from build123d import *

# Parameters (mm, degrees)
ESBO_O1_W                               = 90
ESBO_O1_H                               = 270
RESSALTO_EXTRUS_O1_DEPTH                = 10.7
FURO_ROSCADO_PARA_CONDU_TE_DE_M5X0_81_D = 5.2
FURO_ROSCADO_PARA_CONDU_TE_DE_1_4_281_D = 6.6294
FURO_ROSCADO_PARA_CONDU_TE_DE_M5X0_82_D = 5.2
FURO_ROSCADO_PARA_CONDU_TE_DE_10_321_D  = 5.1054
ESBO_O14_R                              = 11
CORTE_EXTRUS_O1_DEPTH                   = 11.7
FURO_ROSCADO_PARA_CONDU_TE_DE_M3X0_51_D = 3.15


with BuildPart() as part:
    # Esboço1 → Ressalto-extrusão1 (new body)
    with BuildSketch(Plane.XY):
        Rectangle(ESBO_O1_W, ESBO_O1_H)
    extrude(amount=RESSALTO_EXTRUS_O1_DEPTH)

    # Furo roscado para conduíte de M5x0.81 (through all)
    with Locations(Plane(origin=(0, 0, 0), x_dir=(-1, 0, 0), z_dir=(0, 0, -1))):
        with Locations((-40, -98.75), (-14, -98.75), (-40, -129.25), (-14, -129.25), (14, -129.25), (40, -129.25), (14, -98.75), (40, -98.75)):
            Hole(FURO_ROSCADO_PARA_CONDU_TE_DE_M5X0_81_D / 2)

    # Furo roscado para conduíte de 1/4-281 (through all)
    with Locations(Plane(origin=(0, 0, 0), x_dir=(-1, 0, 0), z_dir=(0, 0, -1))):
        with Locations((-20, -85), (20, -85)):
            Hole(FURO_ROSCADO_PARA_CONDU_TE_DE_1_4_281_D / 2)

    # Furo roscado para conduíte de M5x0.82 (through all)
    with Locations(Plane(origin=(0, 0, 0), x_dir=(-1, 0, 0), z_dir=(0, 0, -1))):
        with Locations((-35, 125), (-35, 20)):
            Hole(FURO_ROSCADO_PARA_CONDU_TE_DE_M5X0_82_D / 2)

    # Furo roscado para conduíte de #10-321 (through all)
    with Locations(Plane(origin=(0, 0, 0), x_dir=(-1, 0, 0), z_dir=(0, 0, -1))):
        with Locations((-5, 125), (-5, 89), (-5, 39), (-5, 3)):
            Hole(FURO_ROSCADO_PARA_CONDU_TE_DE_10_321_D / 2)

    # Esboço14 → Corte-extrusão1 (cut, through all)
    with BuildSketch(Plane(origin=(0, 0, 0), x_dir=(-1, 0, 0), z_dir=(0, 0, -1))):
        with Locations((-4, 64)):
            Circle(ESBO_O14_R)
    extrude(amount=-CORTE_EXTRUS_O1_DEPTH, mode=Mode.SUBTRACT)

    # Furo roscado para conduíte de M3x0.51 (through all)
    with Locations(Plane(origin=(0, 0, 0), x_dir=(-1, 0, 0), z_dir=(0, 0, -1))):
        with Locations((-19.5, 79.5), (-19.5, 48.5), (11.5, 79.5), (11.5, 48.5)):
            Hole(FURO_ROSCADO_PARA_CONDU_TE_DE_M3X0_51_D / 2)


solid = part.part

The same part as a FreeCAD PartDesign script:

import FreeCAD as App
import Part
import Sketcher


def add_polygon(sketch, points):
    """Adds a closed chain of lines whose ends are joined by coincident constraints."""
    first, n = sketch.GeometryCount, len(points)
    for a, b in zip(points, points[1:] + points[:1]):
        sketch.addGeometry(Part.LineSegment(App.Vector(*a, 0), App.Vector(*b, 0)), False)
    for i in range(n):
        sketch.addConstraint(Sketcher.Constraint("Coincident", first + i, 2, first + (i + 1) % n, 1))

doc = App.newDocument("Part")
body = doc.addObject("PartDesign::Body", "Body")

# Sketch on XY plane
sketch1 = body.newObject("Sketcher::SketchObject", "Sketch")
sketch1.AttachmentSupport = (doc.getObject("XY_Plane"), [""])
sketch1.MapMode = "FlatFace"
add_polygon(sketch1, [(-45, 135), (-45, -135), (45, -135), (45, 135)])  # lines 0-3
sketch1.addConstraint([
    Sketcher.Constraint("Vertical", 0),
    Sketcher.Constraint("Horizontal", 1),
    Sketcher.Constraint("Vertical", 2),
    Sketcher.Constraint("Horizontal", 3),
    Sketcher.Constraint("Symmetric", 0, 2, 2, 2, -1, 1),
    Sketcher.Constraint("DistanceX", 1, 1, 1, 2, 90.0),
    Sketcher.Constraint("DistanceY", 0, 2, 0, 1, 270.0),
])
pad1 = body.newObject("PartDesign::Pad", "Pad")
pad1.Profile = sketch1
pad1.Length = 10.7

# Sketch on XY plane
sketch2 = body.newObject("Sketcher::SketchObject", "Sketch001")
sketch2.AttachmentSupport = (doc.getObject("XY_Plane"), [""])
sketch2.MapMode = "FlatFace"
sketch2.addGeometry([
    Part.Circle(App.Vector(40, -98.75, 0), App.Vector(0, 0, 1), 2.6),  # 0
    Part.Circle(App.Vector(14, -98.75, 0), App.Vector(0, 0, 1), 2.6),  # 1
    Part.Circle(App.Vector(40, -129.25, 0), App.Vector(0, 0, 1), 2.6),  # 2
    Part.Circle(App.Vector(14, -129.25, 0), App.Vector(0, 0, 1), 2.6),  # 3
    Part.Circle(App.Vector(-14, -129.25, 0), App.Vector(0, 0, 1), 2.6),  # 4
    Part.Circle(App.Vector(-40, -129.25, 0), App.Vector(0, 0, 1), 2.6),  # 5
    Part.Circle(App.Vector(-14, -98.75, 0), App.Vector(0, 0, 1), 2.6),  # 6
    Part.Circle(App.Vector(-40, -98.75, 0), App.Vector(0, 0, 1), 2.6),  # 7
], False)
sketch2.addConstraint([
    Sketcher.Constraint("Equal", 0, 1),
    Sketcher.Constraint("Equal", 1, 2),
    Sketcher.Constraint("Equal", 2, 3),
    Sketcher.Constraint("Equal", 3, 4),
    Sketcher.Constraint("Equal", 4, 5),
    Sketcher.Constraint("Equal", 5, 6),
    Sketcher.Constraint("Equal", 6, 7),
    Sketcher.Constraint("Symmetric", 3, 3, 4, 3, -2),
    Sketcher.Constraint("Symmetric", 2, 3, 5, 3, -2),
    Sketcher.Constraint("Symmetric", 1, 3, 6, 3, -2),
    Sketcher.Constraint("Symmetric", 0, 3, 7, 3, -2),
    Sketcher.Constraint("Horizontal", 0, 3, 1, 3),
    Sketcher.Constraint("Horizontal", 2, 3, 3, 3),
    Sketcher.Constraint("Vertical", 0, 3, 2, 3),
    Sketcher.Constraint("Vertical", 1, 3, 3, 3),
    Sketcher.Constraint("Diameter", 0, 5.2),
    Sketcher.Constraint("DistanceX", -1, 1, 0, 3, 40.0),
    Sketcher.Constraint("DistanceX", -1, 1, 1, 3, 14.0),
    Sketcher.Constraint("DistanceY", 2, 3, 0, 3, 30.5),
    Sketcher.Constraint("DistanceY", 0, 3, -1, 1, 98.75),
])
doc.recompute()
hole = body.newObject("PartDesign::Hole", "Hole")
hole.Profile = sketch2
hole.ThreadType = "None"
hole.Diameter = 5.2
hole.DepthType = "ThroughAll"
hole.Reversed = True

# Sketch on XY plane
sketch3 = body.newObject("Sketcher::SketchObject", "Sketch002")
sketch3.AttachmentSupport = (doc.getObject("XY_Plane"), [""])
sketch3.MapMode = "FlatFace"
sketch3.addGeometry([
    Part.Circle(App.Vector(20, -85, 0), App.Vector(0, 0, 1), 3.3147),
    Part.Circle(App.Vector(-20, -85, 0), App.Vector(0, 0, 1), 3.3147),
], False)
sketch3.addConstraint([
    Sketcher.Constraint("Equal", 0, 1),
    Sketcher.Constraint("Symmetric", 0, 3, 1, 3, -2),
    Sketcher.Constraint("DistanceX", -1, 1, 0, 3, 20.0),
    Sketcher.Constraint("DistanceY", 0, 3, -1, 1, 85.0),
    Sketcher.Constraint("Diameter", 0, 6.6294),
])
doc.recompute()
hole2 = body.newObject("PartDesign::Hole", "Hole001")
hole2.Profile = sketch3
hole2.ThreadType = "None"
hole2.Diameter = 6.6294
hole2.DepthType = "ThroughAll"
hole2.Reversed = True

# Sketch on XY plane
sketch4 = body.newObject("Sketcher::SketchObject", "Sketch003")
sketch4.AttachmentSupport = (doc.getObject("XY_Plane"), [""])
sketch4.MapMode = "FlatFace"
sketch4.addGeometry([
    Part.Circle(App.Vector(35, 125, 0), App.Vector(0, 0, 1), 2.6),
    Part.Circle(App.Vector(35, 20, 0), App.Vector(0, 0, 1), 2.6),
], False)
sketch4.addConstraint([
    Sketcher.Constraint("Equal", 0, 1),
    Sketcher.Constraint("Vertical", 0, 3, 1, 3),
    Sketcher.Constraint("Diameter", 0, 5.2),
    Sketcher.Constraint("DistanceX", -1, 1, 0, 3, 35.0),
    Sketcher.Constraint("DistanceY", -1, 1, 0, 3, 125.0),
    Sketcher.Constraint("DistanceY", -1, 1, 1, 3, 20.0),
])
doc.recompute()
hole3 = body.newObject("PartDesign::Hole", "Hole002")
hole3.Profile = sketch4
hole3.ThreadType = "None"
hole3.Diameter = 5.2
hole3.DepthType = "ThroughAll"
hole3.Reversed = True

# Sketch on XY plane
sketch5 = body.newObject("Sketcher::SketchObject", "Sketch004")
sketch5.AttachmentSupport = (doc.getObject("XY_Plane"), [""])
sketch5.MapMode = "FlatFace"
sketch5.addGeometry([
    Part.Circle(App.Vector(5, 125, 0), App.Vector(0, 0, 1), 2.5527),
    Part.Circle(App.Vector(5, 89, 0), App.Vector(0, 0, 1), 2.5527),
    Part.Circle(App.Vector(5, 39, 0), App.Vector(0, 0, 1), 2.5527),
    Part.Circle(App.Vector(5, 3, 0), App.Vector(0, 0, 1), 2.5527),
], False)
sketch5.addConstraint([
    Sketcher.Constraint("Equal", 0, 1),
    Sketcher.Constraint("Equal", 1, 2),
    Sketcher.Constraint("Equal", 2, 3),
    Sketcher.Constraint("Vertical", 0, 3, 1, 3),
    Sketcher.Constraint("Vertical", 1, 3, 2, 3),
    Sketcher.Constraint("Vertical", 2, 3, 3, 3),
    Sketcher.Constraint("DistanceX", -1, 1, 0, 3, 5.0),
    Sketcher.Constraint("DistanceY", -1, 1, 0, 3, 125.0),
    Sketcher.Constraint("DistanceY", -1, 1, 1, 3, 89.0),
    Sketcher.Constraint("DistanceY", -1, 1, 2, 3, 39.0),
    Sketcher.Constraint("DistanceY", -1, 1, 3, 3, 3.0),
    Sketcher.Constraint("Diameter", 0, 5.1054),
])
doc.recompute()
hole4 = body.newObject("PartDesign::Hole", "Hole003")
hole4.Profile = sketch5
hole4.ThreadType = "None"
hole4.Diameter = 5.1054
hole4.DepthType = "ThroughAll"
hole4.Reversed = True

# Sketch on XY plane
sketch6 = body.newObject("Sketcher::SketchObject", "Sketch005")
sketch6.AttachmentSupport = (doc.getObject("XY_Plane"), [""])
sketch6.MapMode = "FlatFace"
sketch6.addGeometry(Part.Circle(App.Vector(4, 64, 0), App.Vector(0, 0, 1), 11), False)
sketch6.addConstraint([
    Sketcher.Constraint("Diameter", 0, 22.0),
    Sketcher.Constraint("DistanceX", -1, 1, 0, 3, 4.0),
    Sketcher.Constraint("DistanceY", -1, 1, 0, 3, 64.0),
])
pocket1 = body.newObject("PartDesign::Pocket", "Pocket")
pocket1.Profile = sketch6
pocket1.Type = "ThroughAll"
pocket1.Reversed = True

# Sketch on XY plane
sketch7 = body.newObject("Sketcher::SketchObject", "Sketch006")
sketch7.AttachmentSupport = (doc.getObject("XY_Plane"), [""])
sketch7.MapMode = "FlatFace"
sketch7.addGeometry([
    Part.Circle(App.Vector(19.5, 79.5, 0), App.Vector(0, 0, 1), 1.575),
    Part.Circle(App.Vector(19.5, 48.5, 0), App.Vector(0, 0, 1), 1.575),
    Part.Circle(App.Vector(-11.5, 79.5, 0), App.Vector(0, 0, 1), 1.575),
    Part.Circle(App.Vector(-11.5, 48.5, 0), App.Vector(0, 0, 1), 1.575),
], False)
sketch7.addConstraint([
    Sketcher.Constraint("Equal", 0, 1),
    Sketcher.Constraint("Equal", 1, 2),
    Sketcher.Constraint("Equal", 2, 3),
    Sketcher.Constraint("Horizontal", 0, 3, 2, 3),
    Sketcher.Constraint("Horizontal", 1, 3, 3, 3),
    Sketcher.Constraint("Vertical", 0, 3, 1, 3),
    Sketcher.Constraint("Vertical", 2, 3, 3, 3),
    Sketcher.Constraint("Diameter", 0, 3.15),
    Sketcher.Constraint("DistanceY", 1, 3, 0, 3, 31.0),
    Sketcher.Constraint("DistanceX", 2, 3, 0, 3, 31.0),
    Sketcher.Constraint("DistanceX", -1, 1, 0, 3, 19.5),
    Sketcher.Constraint("DistanceY", -1, 1, 0, 3, 79.5),
])
doc.recompute()
hole5 = body.newObject("PartDesign::Hole", "Hole004")
hole5.Profile = sketch7
hole5.ThreadType = "None"
hole5.Diameter = 3.15
hole5.DepthType = "ThroughAll"
hole5.Reversed = True

doc.recompute()
